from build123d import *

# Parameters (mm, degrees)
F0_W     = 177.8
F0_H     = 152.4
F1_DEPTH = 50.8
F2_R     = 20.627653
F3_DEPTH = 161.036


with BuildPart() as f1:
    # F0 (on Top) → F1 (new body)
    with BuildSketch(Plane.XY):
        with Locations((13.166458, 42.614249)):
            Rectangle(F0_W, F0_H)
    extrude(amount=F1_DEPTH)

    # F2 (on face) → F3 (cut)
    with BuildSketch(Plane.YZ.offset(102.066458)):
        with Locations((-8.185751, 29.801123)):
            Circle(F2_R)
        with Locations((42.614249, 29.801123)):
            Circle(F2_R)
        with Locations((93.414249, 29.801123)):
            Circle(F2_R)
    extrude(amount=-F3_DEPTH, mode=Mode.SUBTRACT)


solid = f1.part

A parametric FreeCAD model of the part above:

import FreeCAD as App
import Part
import Sketcher
from FreeCAD import Vector
Q = App.Units.Quantity


def add_polygon(sketch, points):
    """Adds a closed chain of lines whose ends are joined by coincident constraints."""
    first, n = sketch.GeometryCount, len(points)
    for a, b in zip(points, points[1:] + points[:1]):
        sketch.addGeometry(Part.LineSegment(App.Vector(*a, 0), App.Vector(*b, 0)), False)
    for i in range(n):
        sketch.addConstraint(Sketcher.Constraint("Coincident", first + i, 2, first + (i + 1) % n, 1))

doc = App.newDocument("Part")
body = doc.addObject("PartDesign::Body", "Body")

sketch1 = doc.addObject("Sketcher::SketchObject", "Sketch")
body.addObject(sketch1)
sketch1.AttachmentSupport = (doc.XY_Plane, [""])
sketch1.MapMode = "FlatFace"
add_polygon(sketch1, [(-75.733542, 118.814249), (-75.733542, -33.585751), (102.066458, -33.585751), (102.066458, 118.814249)])
sketch1.addConstraint(Sketcher.Constraint("Vertical", 0))
sketch1.addConstraint(Sketcher.Constraint("Horizontal", 1))
sketch1.addConstraint(Sketcher.Constraint("Vertical", 2))
sketch1.addConstraint(Sketcher.Constraint("Horizontal", 3))
sketch1.addConstraint(Sketcher.Constraint("DistanceX", 1, 1, 1, 2, Q("7 in")))
sketch1.addConstraint(Sketcher.Constraint("DistanceY", 0, 2, 0, 1, Q("6 in")))
sketch1.addConstraint(Sketcher.Constraint("DistanceX", 0, 2, -1, 1, Q("75.733542 mm")))
sketch1.addConstraint(Sketcher.Constraint("DistanceY", 0, 2, -1, 1, Q("33.585751 mm")))
pad1 = doc.addObject("PartDesign::Pad", "Pad")
body.addObject(pad1)
pad1.Profile = sketch1
pad1.Length = Q("2 in")

sketch2 = doc.addObject("Sketcher::SketchObject", "Sketch001")
body.addObject(sketch2)
sketch2.AttachmentSupport = (doc.YZ_Plane, [""])
sketch2.MapMode = "FlatFace"
sketch2.AttachmentOffset = App.Placement(Vector(0, 0, 102.066458), App.Rotation())
sketch2.addGeometry(Part.Circle(Vector(-8.185751, 29.801123, 0), Vector(0, 0, 1), 20.627653), False)
sketch2.addGeometry(Part.Circle(Vector(42.614249, 29.801123, 0), Vector(0, 0, 1), 20.627653), False)
sketch2.addGeometry(Part.Circle(Vector(93.414249, 29.801123, 0), Vector(0, 0, 1), 20.627653), False)
sketch2.addConstraint(Sketcher.Constraint("Equal", 0, 1))
sketch2.addConstraint(Sketcher.Constraint("Equal", 1, 2))
sketch2.addConstraint(Sketcher.Constraint("Horizontal", 0, 3, 1, 3))
sketch2.addConstraint(Sketcher.Constraint("Horizontal", 1, 3, 2, 3))
sketch2.addConstraint(Sketcher.Constraint("DistanceX", 0, 3, 1, 3, Q("2 in")))
sketch2.addConstraint(Sketcher.Constraint("DistanceX", 1, 3, 2, 3, Q("2 in")))
sketch2.addConstraint(Sketcher.Constraint("Diameter", 0, Q("41.255306 mm")))
sketch2.addConstraint(Sketcher.Constraint("DistanceX", 0, 3, -1, 1, Q("8.185751 mm")))
sketch2.addConstraint(Sketcher.Constraint("DistanceY", -1, 1, 0, 3, Q("29.801123 mm")))
pocket1 = doc.addObject("PartDesign::Pocket", "Pocket")
body.addObject(pocket1)
pocket1.Profile = sketch2
pocket1.Length = Q("6.34 in")

doc.recompute()
